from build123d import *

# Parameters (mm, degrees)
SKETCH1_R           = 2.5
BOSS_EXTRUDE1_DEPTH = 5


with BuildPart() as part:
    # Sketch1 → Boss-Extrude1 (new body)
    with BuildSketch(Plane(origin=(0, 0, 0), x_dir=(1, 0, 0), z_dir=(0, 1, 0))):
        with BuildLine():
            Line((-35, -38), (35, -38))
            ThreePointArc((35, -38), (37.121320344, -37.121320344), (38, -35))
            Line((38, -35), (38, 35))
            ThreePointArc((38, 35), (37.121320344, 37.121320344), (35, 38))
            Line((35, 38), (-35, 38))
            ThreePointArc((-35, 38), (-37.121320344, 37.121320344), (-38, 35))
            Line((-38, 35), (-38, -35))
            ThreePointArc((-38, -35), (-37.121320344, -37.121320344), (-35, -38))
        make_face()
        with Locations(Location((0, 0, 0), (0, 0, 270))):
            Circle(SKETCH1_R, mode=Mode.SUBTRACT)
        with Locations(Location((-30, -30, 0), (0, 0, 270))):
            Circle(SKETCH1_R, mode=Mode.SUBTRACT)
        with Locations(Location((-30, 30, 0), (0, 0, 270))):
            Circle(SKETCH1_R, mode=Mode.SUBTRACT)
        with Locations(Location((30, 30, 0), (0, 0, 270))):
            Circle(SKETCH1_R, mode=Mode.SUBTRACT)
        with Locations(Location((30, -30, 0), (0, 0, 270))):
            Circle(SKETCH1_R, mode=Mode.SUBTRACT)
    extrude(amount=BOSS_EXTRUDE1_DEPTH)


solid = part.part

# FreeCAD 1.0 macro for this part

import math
import FreeCAD as App
import Part
import Sketcher
from FreeCAD import Vector
Q = App.Units.Quantity

doc = App.newDocument("Part")
body = doc.addObject("PartDesign::Body", "Body")

sketch1 = body.newObject("Sketcher::SketchObject", "Sketch")
sketch1.AttachmentSupport = (doc.getObject("XZ_Plane"), [""])
sketch1.MapMode = "FlatFace"
sketch1.addGeometry(Part.LineSegment(Vector(-35, 38, 0), Vector(35, 38, 0)), False)
sketch1.addGeometry(Part.ArcOfCircle(Part.Circle(Vector(35, 35, 0), Vector(0, 0, 1), 3), math.radians(0), math.radians(90)), False)
sketch1.addGeometry(Part.LineSegment(Vector(38, 35, 0), Vector(38, -35, 0)), False)
sketch1.addGeometry(Part.ArcOfCircle(Part.Circle(Vector(35, -35, 0), Vector(0, 0, 1), 3), math.radians(-90), math.radians(0)), False)
sketch1.addGeometry(Part.LineSegment(Vector(35, -38, 0), Vector(-35, -38, 0)), False)
sketch1.addGeometry(Part.ArcOfCircle(Part.Circle(Vector(-35, -35, 0), Vector(0, 0, 1), 3), math.radians(180), math.radians(270)), False)
sketch1.addGeometry(Part.LineSegment(Vector(-38, -35, 0), Vector(-38, 35, 0)), False)
sketch1.addGeometry(Part.ArcOfCircle(Part.Circle(Vector(-35, 35, 0), Vector(0, 0, 1), 3), math.radians(90), math.radians(180)), False)
sketch1.addGeometry(Part.Circle(Vector(-30, 30, 0), Vector(0, 0, 1), 2.5), False)
sketch1.addGeometry(Part.Circle(Vector(30, 30, 0), Vector(0, 0, 1), 2.5), False)
sketch1.addGeometry(Part.Circle(Vector(-30, -30, 0), Vector(0, 0, 1), 2.5), False)
sketch1.addGeometry(Part.Circle(Vector(0, 0, 0), Vector(0, 0, 1), 2.5), False)
sketch1.addGeometry(Part.Circle(Vector(30, -30, 0), Vector(0, 0, 1), 2.5), False)
sketch1.addConstraint(Sketcher.Constraint("Tangent", 0, 2, 1, 2))
sketch1.addConstraint(Sketcher.Constraint("Tangent", 1, 1, 2, 1))
sketch1.addConstraint(Sketcher.Constraint("Tangent", 2, 2, 3, 2))
sketch1.addConstraint(Sketcher.Constraint("Tangent", 3, 1, 4, 1))
sketch1.addConstraint(Sketcher.Constraint("Tangent", 4, 2, 5, 2))
sketch1.addConstraint(Sketcher.Constraint("Tangent", 5, 1, 6, 1))
sketch1.addConstraint(Sketcher.Constraint("Tangent", 6, 2, 7, 2))
sketch1.addConstraint(Sketcher.Constraint("Tangent", 7, 1, 0, 1))
sketch1.addConstraint(Sketcher.Constraint("Horizontal", 0))
sketch1.addConstraint(Sketcher.Constraint("Vertical", 2))
sketch1.addConstraint(Sketcher.Constraint("Horizontal", 4))
sketch1.addConstraint(Sketcher.Constraint("Vertical", 6))
sketch1.addConstraint(Sketcher.Constraint("Coincident", 11, 3, -1, 1))
sketch1.addConstraint(Sketcher.Constraint("Equal", 1, 3))
sketch1.addConstraint(Sketcher.Constraint("Equal", 3, 5))
sketch1.addConstraint(Sketcher.Constraint("Equal", 5, 7))
sketch1.addConstraint(Sketcher.Constraint("Equal", 8, 9))
sketch1.addConstraint(Sketcher.Constraint("Equal", 9, 10))
sketch1.addConstraint(Sketcher.Constraint("Equal", 10, 11))
sketch1.addConstraint(Sketcher.Constraint("Equal", 11, 12))
sketch1.addConstraint(Sketcher.Constraint("Symmetric", 1, 3, 5, 3, -1, 1))
sketch1.addConstraint(Sketcher.Constraint("Symmetric", 9, 3, 10, 3, -1, 1))
sketch1.addConstraint(Sketcher.Constraint("Symmetric", 8, 3, 12, 3, -1, 1))
sketch1.addConstraint(Sketcher.Constraint("Symmetric", 8, 3, 9, 3, -2))
sketch1.addConstraint(Sketcher.Constraint("Equal", 4, 2))
sketch1.addConstraint(Sketcher.Constraint("Diameter", 8, Q("5 mm")))
sketch1.addConstraint(Sketcher.Constraint("Radius", 1, Q("3 mm")))
sketch1.addConstraint(Sketcher.Constraint("DistanceX", 0, 1, 0, 2, Q("70 mm")))
sketch1.addConstraint(Sketcher.Constraint("DistanceX", 8, 3, -1, 1, Q("30 mm")))
sketch1.addConstraint(Sketcher.Constraint("DistanceY", -1, 1, 8, 3, Q("30 mm")))
pad1 = body.newObject("PartDesign::Pad", "Pad")
pad1.Profile = sketch1
pad1.Length = 5
pad1.Reversed = True

doc.recompute()
